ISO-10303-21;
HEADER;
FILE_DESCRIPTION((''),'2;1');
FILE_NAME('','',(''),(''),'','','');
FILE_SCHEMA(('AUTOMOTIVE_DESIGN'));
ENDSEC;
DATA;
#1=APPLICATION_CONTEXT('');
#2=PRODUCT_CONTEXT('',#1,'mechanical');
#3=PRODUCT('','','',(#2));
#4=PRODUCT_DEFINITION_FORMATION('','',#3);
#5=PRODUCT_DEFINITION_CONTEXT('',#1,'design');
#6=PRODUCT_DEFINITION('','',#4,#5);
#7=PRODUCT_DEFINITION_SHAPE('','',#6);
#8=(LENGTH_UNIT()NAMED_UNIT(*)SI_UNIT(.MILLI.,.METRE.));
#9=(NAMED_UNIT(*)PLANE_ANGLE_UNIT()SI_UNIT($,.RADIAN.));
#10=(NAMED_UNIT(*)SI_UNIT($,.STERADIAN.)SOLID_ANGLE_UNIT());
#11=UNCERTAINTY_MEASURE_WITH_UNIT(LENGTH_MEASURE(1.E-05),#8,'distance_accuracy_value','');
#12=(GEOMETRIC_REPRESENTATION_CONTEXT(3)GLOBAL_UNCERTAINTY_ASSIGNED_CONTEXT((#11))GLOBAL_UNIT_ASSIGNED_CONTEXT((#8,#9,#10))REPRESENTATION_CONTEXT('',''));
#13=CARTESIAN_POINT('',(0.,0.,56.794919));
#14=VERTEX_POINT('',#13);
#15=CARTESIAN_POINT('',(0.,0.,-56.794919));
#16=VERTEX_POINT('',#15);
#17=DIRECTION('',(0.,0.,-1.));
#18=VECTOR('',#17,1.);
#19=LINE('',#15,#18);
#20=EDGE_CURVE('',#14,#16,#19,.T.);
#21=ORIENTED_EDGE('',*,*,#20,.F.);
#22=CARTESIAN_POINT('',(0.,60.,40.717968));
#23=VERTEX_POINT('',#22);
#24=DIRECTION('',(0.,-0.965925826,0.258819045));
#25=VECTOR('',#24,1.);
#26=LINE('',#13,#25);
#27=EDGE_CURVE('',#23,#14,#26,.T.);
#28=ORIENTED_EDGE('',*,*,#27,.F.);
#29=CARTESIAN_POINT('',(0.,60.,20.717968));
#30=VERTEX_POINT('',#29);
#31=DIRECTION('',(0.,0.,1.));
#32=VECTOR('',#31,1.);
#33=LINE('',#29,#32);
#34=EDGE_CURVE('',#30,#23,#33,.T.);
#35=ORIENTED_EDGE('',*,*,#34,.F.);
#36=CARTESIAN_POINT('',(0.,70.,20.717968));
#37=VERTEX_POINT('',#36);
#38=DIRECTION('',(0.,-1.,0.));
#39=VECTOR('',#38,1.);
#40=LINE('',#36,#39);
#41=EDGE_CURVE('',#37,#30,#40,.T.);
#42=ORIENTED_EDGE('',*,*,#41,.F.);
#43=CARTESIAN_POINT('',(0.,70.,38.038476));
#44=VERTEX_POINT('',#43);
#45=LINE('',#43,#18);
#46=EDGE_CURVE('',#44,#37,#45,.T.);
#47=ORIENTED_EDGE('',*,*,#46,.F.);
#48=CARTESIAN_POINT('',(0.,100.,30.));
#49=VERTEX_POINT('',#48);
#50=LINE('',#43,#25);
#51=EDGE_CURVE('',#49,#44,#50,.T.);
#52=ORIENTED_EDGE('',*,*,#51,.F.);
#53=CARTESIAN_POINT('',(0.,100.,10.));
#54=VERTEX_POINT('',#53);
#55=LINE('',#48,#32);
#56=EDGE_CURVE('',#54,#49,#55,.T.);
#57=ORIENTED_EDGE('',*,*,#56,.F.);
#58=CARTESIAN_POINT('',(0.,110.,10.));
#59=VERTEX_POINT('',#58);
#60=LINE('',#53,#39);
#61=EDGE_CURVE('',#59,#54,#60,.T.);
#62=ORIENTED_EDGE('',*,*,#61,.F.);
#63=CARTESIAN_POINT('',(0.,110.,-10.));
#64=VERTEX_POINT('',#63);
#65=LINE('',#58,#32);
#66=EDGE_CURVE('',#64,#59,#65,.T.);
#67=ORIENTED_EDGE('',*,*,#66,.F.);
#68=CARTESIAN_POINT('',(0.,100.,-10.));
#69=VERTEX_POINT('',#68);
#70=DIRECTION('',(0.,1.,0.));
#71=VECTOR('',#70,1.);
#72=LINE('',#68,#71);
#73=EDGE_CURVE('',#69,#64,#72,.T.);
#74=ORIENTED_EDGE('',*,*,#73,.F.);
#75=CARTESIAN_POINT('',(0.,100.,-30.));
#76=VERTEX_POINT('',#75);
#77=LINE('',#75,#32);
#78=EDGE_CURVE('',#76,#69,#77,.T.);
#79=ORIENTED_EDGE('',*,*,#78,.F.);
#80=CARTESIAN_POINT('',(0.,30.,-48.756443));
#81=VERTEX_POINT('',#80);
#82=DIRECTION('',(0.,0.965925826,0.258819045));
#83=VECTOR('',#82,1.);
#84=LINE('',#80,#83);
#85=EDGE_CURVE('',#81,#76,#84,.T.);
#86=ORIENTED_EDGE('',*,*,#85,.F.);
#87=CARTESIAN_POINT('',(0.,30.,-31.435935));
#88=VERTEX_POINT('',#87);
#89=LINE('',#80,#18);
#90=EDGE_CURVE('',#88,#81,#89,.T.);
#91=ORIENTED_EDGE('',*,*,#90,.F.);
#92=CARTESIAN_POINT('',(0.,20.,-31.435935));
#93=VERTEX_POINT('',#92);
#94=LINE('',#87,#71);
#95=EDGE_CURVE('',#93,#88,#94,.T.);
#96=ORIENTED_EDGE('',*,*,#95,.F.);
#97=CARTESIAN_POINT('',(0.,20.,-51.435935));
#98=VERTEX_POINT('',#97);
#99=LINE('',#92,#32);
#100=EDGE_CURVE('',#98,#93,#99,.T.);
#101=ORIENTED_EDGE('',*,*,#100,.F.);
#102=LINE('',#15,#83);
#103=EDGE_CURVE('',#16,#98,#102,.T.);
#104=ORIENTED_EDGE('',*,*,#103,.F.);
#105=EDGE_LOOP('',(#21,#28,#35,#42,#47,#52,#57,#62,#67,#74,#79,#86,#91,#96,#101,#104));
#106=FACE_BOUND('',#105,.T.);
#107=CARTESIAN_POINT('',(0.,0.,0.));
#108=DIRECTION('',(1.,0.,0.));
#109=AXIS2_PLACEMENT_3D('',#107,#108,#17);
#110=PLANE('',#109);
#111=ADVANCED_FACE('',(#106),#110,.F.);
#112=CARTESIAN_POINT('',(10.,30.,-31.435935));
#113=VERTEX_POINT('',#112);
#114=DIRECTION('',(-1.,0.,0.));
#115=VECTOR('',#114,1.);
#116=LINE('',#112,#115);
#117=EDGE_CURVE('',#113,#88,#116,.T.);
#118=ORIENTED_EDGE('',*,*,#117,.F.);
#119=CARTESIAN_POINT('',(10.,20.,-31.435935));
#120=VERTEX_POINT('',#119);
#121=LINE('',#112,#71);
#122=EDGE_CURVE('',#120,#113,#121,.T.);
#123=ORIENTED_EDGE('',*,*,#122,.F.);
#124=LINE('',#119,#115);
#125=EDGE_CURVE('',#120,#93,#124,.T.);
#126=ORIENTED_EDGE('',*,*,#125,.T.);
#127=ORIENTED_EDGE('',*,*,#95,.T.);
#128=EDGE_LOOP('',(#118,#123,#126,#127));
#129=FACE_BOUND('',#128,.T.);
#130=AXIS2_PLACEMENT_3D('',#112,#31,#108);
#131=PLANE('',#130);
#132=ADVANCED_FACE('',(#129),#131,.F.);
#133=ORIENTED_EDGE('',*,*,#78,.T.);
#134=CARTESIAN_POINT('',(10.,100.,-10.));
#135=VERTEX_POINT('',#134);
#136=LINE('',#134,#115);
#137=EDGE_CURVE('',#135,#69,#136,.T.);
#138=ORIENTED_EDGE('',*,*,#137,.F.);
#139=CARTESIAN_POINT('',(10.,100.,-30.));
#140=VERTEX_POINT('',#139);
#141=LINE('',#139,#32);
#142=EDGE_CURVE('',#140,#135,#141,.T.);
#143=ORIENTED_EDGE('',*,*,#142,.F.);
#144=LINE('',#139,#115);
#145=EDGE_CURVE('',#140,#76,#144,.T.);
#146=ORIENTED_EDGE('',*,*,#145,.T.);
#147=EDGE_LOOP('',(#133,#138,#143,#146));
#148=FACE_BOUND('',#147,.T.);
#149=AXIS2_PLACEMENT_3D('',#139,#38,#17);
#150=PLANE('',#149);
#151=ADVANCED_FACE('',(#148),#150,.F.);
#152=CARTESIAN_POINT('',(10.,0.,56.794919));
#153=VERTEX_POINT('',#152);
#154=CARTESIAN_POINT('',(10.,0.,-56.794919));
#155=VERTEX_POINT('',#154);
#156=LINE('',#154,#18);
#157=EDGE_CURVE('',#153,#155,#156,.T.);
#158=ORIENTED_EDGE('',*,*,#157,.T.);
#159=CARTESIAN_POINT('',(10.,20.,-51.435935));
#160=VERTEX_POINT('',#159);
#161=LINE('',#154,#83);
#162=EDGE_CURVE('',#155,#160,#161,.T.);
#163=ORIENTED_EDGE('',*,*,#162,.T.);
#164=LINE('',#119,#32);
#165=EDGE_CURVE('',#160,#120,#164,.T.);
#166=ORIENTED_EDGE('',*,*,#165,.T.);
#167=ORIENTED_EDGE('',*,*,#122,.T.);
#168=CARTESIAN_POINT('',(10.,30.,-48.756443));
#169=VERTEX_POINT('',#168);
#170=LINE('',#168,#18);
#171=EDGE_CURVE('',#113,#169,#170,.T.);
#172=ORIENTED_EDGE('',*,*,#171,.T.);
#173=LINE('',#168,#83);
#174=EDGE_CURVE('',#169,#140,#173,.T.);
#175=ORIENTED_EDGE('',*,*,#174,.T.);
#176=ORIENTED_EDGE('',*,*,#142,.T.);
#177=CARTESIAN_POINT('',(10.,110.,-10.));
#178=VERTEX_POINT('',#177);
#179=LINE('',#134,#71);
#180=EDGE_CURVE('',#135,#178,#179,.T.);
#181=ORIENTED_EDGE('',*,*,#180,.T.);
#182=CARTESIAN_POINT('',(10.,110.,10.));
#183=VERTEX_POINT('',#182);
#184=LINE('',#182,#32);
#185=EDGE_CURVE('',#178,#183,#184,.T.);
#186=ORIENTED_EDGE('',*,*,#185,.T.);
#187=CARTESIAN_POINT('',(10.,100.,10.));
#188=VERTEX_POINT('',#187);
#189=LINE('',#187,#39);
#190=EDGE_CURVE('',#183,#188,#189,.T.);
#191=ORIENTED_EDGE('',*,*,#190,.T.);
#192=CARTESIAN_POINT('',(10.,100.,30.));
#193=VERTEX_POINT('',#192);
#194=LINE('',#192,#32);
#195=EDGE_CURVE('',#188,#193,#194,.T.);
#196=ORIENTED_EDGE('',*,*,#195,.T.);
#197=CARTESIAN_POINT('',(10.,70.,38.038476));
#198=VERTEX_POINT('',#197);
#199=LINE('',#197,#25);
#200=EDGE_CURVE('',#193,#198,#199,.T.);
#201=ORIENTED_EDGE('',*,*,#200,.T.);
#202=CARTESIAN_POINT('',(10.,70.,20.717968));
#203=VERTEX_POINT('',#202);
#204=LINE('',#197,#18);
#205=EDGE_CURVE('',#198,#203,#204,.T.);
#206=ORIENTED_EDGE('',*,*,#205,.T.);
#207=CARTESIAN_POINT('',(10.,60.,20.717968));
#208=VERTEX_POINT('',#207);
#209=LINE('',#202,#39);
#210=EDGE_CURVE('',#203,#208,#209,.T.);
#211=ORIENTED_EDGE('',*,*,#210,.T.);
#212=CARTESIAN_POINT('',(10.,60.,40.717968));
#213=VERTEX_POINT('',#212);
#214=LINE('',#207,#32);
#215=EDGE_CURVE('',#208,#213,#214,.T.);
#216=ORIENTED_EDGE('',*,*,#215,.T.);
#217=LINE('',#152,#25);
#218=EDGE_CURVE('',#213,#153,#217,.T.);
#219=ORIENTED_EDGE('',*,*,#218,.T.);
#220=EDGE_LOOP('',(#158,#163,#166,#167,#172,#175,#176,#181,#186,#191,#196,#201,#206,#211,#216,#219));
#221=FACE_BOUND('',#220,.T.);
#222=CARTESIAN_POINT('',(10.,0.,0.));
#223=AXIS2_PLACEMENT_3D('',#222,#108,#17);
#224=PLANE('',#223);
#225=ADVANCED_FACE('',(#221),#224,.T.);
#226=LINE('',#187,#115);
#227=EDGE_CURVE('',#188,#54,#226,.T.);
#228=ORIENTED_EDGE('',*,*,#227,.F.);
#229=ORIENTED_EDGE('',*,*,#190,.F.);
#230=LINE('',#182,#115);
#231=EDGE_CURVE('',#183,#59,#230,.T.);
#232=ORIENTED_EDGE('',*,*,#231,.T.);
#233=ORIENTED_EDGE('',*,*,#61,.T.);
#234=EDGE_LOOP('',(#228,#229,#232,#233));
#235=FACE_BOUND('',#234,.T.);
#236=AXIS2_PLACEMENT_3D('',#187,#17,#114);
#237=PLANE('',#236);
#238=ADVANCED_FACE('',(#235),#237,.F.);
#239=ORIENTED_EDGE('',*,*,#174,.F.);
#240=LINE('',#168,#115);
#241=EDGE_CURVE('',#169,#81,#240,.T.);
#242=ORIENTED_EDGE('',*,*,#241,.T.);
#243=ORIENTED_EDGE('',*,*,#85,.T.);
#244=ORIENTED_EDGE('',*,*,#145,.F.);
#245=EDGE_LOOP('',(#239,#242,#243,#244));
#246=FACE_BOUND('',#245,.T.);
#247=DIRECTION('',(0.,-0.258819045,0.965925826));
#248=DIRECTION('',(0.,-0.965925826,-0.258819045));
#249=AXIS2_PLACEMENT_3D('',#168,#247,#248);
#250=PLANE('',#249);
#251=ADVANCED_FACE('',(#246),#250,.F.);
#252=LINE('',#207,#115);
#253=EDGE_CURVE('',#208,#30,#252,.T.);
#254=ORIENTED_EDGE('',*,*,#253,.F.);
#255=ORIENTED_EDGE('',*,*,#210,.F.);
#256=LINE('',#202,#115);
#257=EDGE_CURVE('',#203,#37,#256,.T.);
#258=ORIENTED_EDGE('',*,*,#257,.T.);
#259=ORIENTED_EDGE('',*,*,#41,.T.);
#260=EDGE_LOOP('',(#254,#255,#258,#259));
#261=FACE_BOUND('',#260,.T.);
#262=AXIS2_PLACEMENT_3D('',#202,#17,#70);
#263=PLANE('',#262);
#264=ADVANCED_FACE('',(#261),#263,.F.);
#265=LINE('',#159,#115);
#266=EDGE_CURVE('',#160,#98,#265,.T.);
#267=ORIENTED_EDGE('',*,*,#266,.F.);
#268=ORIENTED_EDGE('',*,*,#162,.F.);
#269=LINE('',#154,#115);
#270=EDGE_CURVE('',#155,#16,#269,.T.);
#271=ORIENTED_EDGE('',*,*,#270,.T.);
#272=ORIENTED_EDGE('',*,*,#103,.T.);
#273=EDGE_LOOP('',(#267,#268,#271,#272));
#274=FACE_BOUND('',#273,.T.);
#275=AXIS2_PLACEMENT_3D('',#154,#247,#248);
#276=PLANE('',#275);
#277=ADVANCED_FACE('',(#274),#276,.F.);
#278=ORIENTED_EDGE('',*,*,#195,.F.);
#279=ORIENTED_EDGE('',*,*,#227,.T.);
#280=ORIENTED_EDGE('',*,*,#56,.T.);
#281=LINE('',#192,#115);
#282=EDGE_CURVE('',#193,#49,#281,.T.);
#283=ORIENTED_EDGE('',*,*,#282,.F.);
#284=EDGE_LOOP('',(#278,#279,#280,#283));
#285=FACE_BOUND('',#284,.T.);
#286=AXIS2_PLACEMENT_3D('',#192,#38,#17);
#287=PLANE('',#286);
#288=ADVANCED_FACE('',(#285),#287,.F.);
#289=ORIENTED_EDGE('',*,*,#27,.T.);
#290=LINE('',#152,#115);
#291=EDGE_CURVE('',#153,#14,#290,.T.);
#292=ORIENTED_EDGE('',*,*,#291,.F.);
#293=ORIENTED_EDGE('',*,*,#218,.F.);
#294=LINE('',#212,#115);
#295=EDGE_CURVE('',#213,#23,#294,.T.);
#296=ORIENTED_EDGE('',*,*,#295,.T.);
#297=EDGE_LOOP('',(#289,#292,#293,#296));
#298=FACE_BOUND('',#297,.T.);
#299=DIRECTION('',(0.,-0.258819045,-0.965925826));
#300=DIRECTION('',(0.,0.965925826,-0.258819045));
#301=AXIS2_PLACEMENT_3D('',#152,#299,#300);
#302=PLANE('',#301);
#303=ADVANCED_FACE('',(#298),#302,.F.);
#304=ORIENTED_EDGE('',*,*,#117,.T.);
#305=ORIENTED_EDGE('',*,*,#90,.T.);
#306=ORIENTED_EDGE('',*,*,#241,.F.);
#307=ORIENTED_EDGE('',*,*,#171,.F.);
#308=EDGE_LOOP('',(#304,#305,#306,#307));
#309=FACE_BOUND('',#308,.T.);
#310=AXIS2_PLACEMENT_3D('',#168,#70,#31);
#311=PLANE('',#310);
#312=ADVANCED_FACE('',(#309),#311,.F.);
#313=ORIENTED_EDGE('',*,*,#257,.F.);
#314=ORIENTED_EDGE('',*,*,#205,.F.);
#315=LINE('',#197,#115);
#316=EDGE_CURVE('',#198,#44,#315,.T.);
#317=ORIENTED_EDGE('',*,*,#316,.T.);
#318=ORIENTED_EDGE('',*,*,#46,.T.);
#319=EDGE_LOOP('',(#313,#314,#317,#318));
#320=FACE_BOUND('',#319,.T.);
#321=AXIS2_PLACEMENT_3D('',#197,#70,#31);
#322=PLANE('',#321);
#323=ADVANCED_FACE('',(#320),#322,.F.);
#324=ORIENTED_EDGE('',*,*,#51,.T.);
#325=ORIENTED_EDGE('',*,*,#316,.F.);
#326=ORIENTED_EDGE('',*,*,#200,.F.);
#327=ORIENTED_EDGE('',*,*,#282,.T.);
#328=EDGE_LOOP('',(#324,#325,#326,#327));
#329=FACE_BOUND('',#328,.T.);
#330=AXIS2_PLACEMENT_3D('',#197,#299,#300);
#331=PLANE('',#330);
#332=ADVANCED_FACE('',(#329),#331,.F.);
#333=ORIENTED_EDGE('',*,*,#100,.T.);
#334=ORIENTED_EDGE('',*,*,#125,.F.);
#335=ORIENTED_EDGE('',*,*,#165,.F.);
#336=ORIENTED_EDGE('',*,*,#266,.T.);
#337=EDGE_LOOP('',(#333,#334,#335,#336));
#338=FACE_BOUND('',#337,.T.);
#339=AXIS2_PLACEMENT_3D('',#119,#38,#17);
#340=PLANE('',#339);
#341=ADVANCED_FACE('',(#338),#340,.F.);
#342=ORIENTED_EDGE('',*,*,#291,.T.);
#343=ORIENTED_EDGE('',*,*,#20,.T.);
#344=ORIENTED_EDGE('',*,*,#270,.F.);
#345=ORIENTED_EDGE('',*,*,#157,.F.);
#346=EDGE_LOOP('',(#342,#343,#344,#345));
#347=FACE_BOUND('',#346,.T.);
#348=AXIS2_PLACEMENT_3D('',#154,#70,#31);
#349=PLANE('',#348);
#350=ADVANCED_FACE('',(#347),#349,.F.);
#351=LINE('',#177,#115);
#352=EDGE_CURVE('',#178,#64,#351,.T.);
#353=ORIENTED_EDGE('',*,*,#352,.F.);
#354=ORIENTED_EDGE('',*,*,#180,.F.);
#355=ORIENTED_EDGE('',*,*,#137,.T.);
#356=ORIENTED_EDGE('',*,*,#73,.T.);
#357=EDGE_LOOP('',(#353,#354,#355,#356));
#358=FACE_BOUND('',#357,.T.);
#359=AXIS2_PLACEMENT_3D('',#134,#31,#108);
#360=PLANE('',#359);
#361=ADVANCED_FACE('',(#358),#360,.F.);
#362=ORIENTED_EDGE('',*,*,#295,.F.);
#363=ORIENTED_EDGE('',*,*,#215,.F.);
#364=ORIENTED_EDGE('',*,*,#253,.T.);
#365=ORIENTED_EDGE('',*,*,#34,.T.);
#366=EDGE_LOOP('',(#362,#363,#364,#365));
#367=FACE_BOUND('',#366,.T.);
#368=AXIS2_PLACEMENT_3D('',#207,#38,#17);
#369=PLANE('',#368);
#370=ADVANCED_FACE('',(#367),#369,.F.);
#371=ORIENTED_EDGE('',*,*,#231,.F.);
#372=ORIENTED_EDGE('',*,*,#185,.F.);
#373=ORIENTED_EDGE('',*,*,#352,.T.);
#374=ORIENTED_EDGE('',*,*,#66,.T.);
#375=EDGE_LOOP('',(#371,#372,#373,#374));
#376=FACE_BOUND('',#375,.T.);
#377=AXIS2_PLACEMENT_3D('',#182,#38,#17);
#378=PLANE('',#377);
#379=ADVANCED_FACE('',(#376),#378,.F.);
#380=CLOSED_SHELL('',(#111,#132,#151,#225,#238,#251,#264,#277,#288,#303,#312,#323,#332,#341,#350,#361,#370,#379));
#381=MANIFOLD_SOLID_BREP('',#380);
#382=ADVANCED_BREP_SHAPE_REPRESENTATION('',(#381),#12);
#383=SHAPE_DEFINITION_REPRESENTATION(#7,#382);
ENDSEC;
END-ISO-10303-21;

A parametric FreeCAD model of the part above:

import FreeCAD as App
import Part
import Sketcher

V = App.Vector
Q = App.Units.Quantity


def add_polygon(sketch, points):
    """Adds a closed chain of lines whose ends are joined by coincident constraints."""
    first, n = sketch.GeometryCount, len(points)
    for a, b in zip(points, points[1:] + points[:1]):
        sketch.addGeometry(Part.LineSegment(App.Vector(*a, 0), App.Vector(*b, 0)), False)
    for i in range(n):
        sketch.addConstraint(Sketcher.Constraint("Coincident", first + i, 2, first + (i + 1) % n, 1))

doc = App.newDocument("Part")
params = doc.addObject("Spreadsheet::Sheet", "Params")
for row, (alias, value) in enumerate([
    ("sketch1_width", "10 mm"),
    ("sketch1_height", "20 mm"),
    ("pad1_length", "10 mm"),
], start=1):
    params.set(f"A{row}", alias)
    params.set(f"B{row}", "=" + value)
    params.setAlias(f"B{row}", alias)

body = doc.addObject("PartDesign::Body", "Body")

# Sketch on YZ plane
sketch1 = body.newObject("Sketcher::SketchObject", "Sketch")
sketch1.AttachmentSupport = (doc.getObject("YZ_Plane"), [""])
sketch1.MapMode = "FlatFace"
add_polygon(sketch1, [(0, 57), (0, -57), (20, -51), (20, -31), (30, -31), (30, -49), (100, -30), (100, -10), (110, -10), (110, 10), (100, 10), (100, 30), (70, 38), (70, 21), (60, 21), (60, 41)])  # lines 0-15
sketch1.addConstraint([
    Sketcher.Constraint("Vertical", 0),
    Sketcher.Constraint("Vertical", 2),
    Sketcher.Constraint("Horizontal", 3),
    Sketcher.Constraint("Vertical", 4),
    Sketcher.Constraint("Vertical", 6),
    Sketcher.Constraint("Horizontal", 7),
    Sketcher.Constraint("Vertical", 8),
    Sketcher.Constraint("Horizontal", 9),
    Sketcher.Constraint("Vertical", 10),
    Sketcher.Constraint("Vertical", 12),
    Sketcher.Constraint("Horizontal", 13),
    Sketcher.Constraint("Vertical", 14),
    Sketcher.Constraint("Symmetric", 0, 2, 15, 2, -1, 1),
    Sketcher.Constraint("Symmetric", 6, 2, 9, 2, -1),
    Sketcher.Constraint("Parallel", 1, 5),
    Sketcher.Constraint("Parallel", 11, 15),
    Sketcher.Constraint("Equal", 3, 7),
    Sketcher.Constraint("Equal", 9, 13),
    Sketcher.Constraint("Equal", 2, 6),
    Sketcher.Constraint("Equal", 6, 8),
    Sketcher.Constraint("Equal", 8, 10),
    Sketcher.Constraint("Equal", 4, 12),
    Sketcher.Constraint("Equal", 10, 14),
    Sketcher.Constraint("DistanceX", 3, 1, 3, 2, Q("10 mm")),
    Sketcher.Constraint("DistanceY", 2, 1, 2, 2, Q("20 mm")),
    Sketcher.Constraint("Angle", 1, Q("15 deg")),
    Sketcher.Constraint("DistanceX", -1, 1, 1, 2, Q("20 mm")),
    Sketcher.Constraint("DistanceX", -1, 1, 5, 2, Q("100 mm")),
    Sketcher.Constraint("DistanceX", -1, 1, 11, 2, Q("70 mm")),
    Sketcher.Constraint("DistanceY", 0, 2, 0, 1, Q("113.589838 mm")),
])
sketch1.setExpression("Constraints[39]", "Params.sketch1_width")
sketch1.setExpression("Constraints[40]", "Params.sketch1_height")
pad1 = body.newObject("PartDesign::Pad", "Pad")
pad1.Profile = sketch1
pad1.setExpression("Length", "Params.pad1_length")

doc.recompute()
